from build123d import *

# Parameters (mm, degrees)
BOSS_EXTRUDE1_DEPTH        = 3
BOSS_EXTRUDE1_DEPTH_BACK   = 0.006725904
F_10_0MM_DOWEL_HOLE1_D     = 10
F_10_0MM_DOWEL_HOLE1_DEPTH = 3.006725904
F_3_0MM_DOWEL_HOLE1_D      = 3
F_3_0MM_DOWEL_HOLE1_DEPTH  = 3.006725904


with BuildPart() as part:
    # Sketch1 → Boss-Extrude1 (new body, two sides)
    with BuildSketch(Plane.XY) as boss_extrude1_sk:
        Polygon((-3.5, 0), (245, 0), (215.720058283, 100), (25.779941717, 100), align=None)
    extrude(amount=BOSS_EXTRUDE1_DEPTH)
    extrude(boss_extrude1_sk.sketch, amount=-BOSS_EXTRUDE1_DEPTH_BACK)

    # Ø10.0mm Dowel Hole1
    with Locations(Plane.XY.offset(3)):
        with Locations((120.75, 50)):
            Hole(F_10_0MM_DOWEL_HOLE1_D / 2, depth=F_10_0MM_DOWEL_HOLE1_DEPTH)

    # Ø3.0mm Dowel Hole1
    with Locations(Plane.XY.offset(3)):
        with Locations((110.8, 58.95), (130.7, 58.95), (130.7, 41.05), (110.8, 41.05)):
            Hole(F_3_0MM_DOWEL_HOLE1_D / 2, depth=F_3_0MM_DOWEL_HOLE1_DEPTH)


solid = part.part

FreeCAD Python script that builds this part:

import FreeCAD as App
import Part
import Sketcher
from FreeCAD import Vector
Q = App.Units.Quantity

doc = App.newDocument("Part")
body = doc.addObject("PartDesign::Body", "Body")

sketch1 = doc.addObject("Sketcher::SketchObject", "Sketch")
body.addObject(sketch1)
sketch1.AttachmentSupport = (doc.XY_Plane, [""])
sketch1.MapMode = "FlatFace"
sketch1.addGeometry(Part.LineSegment(Vector(-4, 0, 0), Vector(245, 0, 0)), False)
sketch1.addGeometry(Part.LineSegment(Vector(245, 0, 0), Vector(216, 100, 0)), False)
sketch1.addGeometry(Part.LineSegment(Vector(216, 100, 0), Vector(26, 100, 0)), False)
sketch1.addGeometry(Part.LineSegment(Vector(26, 100, 0), Vector(-4, 0, 0)), False)
sketch1.addConstraint(Sketcher.Constraint("Coincident", 0, 2, 1, 1))
sketch1.addConstraint(Sketcher.Constraint("Coincident", 1, 2, 2, 1))
sketch1.addConstraint(Sketcher.Constraint("Coincident", 2, 2, 3, 1))
sketch1.addConstraint(Sketcher.Constraint("Coincident", 3, 2, 0, 1))
sketch1.addConstraint(Sketcher.Constraint("Horizontal", 0))
sketch1.addConstraint(Sketcher.Constraint("Horizontal", 2))
sketch1.addConstraint(Sketcher.Constraint("PointOnObject", 0, 2, -1))
sketch1.addConstraint(Sketcher.Constraint("Equal", 1, 3))
sketch1.addConstraint(Sketcher.Constraint("DistanceX", 0, 1, 0, 2, Q("248.5 mm")))
sketch1.addConstraint(Sketcher.Constraint("DistanceX", -1, 1, 0, 2, Q("245 mm")))
sketch1.addConstraint(Sketcher.Constraint("DistanceY", -1, 1, 1, 2, Q("100 mm")))
sketch1.addConstraint(Sketcher.Constraint("Angle", 1, Q("106.32 deg")))
pad1 = doc.addObject("PartDesign::Pad", "Pad")
body.addObject(pad1)
pad1.Profile = sketch1
pad1.Type = "TwoLengths"
pad1.Length = 3
pad1.Length2 = 0.006726

sketch2 = doc.addObject("Sketcher::SketchObject", "Sketch001")
body.addObject(sketch2)
sketch2.AttachmentSupport = (doc.XY_Plane, [""])
sketch2.MapMode = "FlatFace"
sketch2.AttachmentOffset = App.Placement(Vector(0, 0, 3), App.Rotation())
sketch2.addGeometry(Part.Circle(Vector(121, 50, 0), Vector(0, 0, 1), 5), False)
sketch2.addConstraint(Sketcher.Constraint("Diameter", 0, Q("10 mm")))
sketch2.addConstraint(Sketcher.Constraint("DistanceY", -1, 1, 0, 3, Q("50 mm")))
sketch2.addConstraint(Sketcher.Constraint("DistanceX", -1, 1, 0, 3, Q("120.75 mm")))
doc.recompute()
hole = doc.addObject("PartDesign::Hole", "Hole")
body.addObject(hole)
hole.Profile = sketch2
hole.ThreadType = "None"
hole.Diameter = 10
hole.DepthType = "Dimension"
hole.Depth = 3.006726
hole.DrillPoint = "Flat"

sketch3 = doc.addObject("Sketcher::SketchObject", "Sketch002")
body.addObject(sketch3)
sketch3.AttachmentSupport = (doc.XY_Plane, [""])
sketch3.MapMode = "FlatFace"
sketch3.AttachmentOffset = App.Placement(Vector(0, 0, 3), App.Rotation())
sketch3.addGeometry(Part.Circle(Vector(110.8, 59, 0), Vector(0, 0, 1), 1.5), False)
sketch3.addGeometry(Part.Circle(Vector(130.7, 59, 0), Vector(0, 0, 1), 1.5), False)
sketch3.addGeometry(Part.Circle(Vector(130.7, 41, 0), Vector(0, 0, 1), 1.5), False)
sketch3.addGeometry(Part.Circle(Vector(110.8, 41, 0), Vector(0, 0, 1), 1.5), False)
sketch3.addConstraint(Sketcher.Constraint("Equal", 0, 1))
sketch3.addConstraint(Sketcher.Constraint("Equal", 1, 2))
sketch3.addConstraint(Sketcher.Constraint("Equal", 2, 3))
sketch3.addConstraint(Sketcher.Constraint("Horizontal", 0, 3, 1, 3))
sketch3.addConstraint(Sketcher.Constraint("Horizontal", 2, 3, 3, 3))
sketch3.addConstraint(Sketcher.Constraint("Vertical", 1, 3, 2, 3))
sketch3.addConstraint(Sketcher.Constraint("Vertical", 0, 3, 3, 3))
sketch3.addConstraint(Sketcher.Constraint("Diameter", 0, Q("3 mm")))
sketch3.addConstraint(Sketcher.Constraint("DistanceX", -1, 1, 0, 3, Q("110.8 mm")))
sketch3.addConstraint(Sketcher.Constraint("DistanceX", -1, 1, 1, 3, Q("130.7 mm")))
sketch3.addConstraint(Sketcher.Constraint("DistanceY", 2, 3, 1, 3, Q("17.9 mm")))
sketch3.addConstraint(Sketcher.Constraint("DistanceY", -1, 1, 0, 3, Q("58.95 mm")))
doc.recompute()
hole2 = doc.addObject("PartDesign::Hole", "Hole001")
body.addObject(hole2)
hole2.Profile = sketch3
hole2.ThreadType = "None"
hole2.Diameter = 3
hole2.DepthType = "Dimension"
hole2.Depth = 3.006726
hole2.DrillPoint = "Flat"

doc.recompute()
